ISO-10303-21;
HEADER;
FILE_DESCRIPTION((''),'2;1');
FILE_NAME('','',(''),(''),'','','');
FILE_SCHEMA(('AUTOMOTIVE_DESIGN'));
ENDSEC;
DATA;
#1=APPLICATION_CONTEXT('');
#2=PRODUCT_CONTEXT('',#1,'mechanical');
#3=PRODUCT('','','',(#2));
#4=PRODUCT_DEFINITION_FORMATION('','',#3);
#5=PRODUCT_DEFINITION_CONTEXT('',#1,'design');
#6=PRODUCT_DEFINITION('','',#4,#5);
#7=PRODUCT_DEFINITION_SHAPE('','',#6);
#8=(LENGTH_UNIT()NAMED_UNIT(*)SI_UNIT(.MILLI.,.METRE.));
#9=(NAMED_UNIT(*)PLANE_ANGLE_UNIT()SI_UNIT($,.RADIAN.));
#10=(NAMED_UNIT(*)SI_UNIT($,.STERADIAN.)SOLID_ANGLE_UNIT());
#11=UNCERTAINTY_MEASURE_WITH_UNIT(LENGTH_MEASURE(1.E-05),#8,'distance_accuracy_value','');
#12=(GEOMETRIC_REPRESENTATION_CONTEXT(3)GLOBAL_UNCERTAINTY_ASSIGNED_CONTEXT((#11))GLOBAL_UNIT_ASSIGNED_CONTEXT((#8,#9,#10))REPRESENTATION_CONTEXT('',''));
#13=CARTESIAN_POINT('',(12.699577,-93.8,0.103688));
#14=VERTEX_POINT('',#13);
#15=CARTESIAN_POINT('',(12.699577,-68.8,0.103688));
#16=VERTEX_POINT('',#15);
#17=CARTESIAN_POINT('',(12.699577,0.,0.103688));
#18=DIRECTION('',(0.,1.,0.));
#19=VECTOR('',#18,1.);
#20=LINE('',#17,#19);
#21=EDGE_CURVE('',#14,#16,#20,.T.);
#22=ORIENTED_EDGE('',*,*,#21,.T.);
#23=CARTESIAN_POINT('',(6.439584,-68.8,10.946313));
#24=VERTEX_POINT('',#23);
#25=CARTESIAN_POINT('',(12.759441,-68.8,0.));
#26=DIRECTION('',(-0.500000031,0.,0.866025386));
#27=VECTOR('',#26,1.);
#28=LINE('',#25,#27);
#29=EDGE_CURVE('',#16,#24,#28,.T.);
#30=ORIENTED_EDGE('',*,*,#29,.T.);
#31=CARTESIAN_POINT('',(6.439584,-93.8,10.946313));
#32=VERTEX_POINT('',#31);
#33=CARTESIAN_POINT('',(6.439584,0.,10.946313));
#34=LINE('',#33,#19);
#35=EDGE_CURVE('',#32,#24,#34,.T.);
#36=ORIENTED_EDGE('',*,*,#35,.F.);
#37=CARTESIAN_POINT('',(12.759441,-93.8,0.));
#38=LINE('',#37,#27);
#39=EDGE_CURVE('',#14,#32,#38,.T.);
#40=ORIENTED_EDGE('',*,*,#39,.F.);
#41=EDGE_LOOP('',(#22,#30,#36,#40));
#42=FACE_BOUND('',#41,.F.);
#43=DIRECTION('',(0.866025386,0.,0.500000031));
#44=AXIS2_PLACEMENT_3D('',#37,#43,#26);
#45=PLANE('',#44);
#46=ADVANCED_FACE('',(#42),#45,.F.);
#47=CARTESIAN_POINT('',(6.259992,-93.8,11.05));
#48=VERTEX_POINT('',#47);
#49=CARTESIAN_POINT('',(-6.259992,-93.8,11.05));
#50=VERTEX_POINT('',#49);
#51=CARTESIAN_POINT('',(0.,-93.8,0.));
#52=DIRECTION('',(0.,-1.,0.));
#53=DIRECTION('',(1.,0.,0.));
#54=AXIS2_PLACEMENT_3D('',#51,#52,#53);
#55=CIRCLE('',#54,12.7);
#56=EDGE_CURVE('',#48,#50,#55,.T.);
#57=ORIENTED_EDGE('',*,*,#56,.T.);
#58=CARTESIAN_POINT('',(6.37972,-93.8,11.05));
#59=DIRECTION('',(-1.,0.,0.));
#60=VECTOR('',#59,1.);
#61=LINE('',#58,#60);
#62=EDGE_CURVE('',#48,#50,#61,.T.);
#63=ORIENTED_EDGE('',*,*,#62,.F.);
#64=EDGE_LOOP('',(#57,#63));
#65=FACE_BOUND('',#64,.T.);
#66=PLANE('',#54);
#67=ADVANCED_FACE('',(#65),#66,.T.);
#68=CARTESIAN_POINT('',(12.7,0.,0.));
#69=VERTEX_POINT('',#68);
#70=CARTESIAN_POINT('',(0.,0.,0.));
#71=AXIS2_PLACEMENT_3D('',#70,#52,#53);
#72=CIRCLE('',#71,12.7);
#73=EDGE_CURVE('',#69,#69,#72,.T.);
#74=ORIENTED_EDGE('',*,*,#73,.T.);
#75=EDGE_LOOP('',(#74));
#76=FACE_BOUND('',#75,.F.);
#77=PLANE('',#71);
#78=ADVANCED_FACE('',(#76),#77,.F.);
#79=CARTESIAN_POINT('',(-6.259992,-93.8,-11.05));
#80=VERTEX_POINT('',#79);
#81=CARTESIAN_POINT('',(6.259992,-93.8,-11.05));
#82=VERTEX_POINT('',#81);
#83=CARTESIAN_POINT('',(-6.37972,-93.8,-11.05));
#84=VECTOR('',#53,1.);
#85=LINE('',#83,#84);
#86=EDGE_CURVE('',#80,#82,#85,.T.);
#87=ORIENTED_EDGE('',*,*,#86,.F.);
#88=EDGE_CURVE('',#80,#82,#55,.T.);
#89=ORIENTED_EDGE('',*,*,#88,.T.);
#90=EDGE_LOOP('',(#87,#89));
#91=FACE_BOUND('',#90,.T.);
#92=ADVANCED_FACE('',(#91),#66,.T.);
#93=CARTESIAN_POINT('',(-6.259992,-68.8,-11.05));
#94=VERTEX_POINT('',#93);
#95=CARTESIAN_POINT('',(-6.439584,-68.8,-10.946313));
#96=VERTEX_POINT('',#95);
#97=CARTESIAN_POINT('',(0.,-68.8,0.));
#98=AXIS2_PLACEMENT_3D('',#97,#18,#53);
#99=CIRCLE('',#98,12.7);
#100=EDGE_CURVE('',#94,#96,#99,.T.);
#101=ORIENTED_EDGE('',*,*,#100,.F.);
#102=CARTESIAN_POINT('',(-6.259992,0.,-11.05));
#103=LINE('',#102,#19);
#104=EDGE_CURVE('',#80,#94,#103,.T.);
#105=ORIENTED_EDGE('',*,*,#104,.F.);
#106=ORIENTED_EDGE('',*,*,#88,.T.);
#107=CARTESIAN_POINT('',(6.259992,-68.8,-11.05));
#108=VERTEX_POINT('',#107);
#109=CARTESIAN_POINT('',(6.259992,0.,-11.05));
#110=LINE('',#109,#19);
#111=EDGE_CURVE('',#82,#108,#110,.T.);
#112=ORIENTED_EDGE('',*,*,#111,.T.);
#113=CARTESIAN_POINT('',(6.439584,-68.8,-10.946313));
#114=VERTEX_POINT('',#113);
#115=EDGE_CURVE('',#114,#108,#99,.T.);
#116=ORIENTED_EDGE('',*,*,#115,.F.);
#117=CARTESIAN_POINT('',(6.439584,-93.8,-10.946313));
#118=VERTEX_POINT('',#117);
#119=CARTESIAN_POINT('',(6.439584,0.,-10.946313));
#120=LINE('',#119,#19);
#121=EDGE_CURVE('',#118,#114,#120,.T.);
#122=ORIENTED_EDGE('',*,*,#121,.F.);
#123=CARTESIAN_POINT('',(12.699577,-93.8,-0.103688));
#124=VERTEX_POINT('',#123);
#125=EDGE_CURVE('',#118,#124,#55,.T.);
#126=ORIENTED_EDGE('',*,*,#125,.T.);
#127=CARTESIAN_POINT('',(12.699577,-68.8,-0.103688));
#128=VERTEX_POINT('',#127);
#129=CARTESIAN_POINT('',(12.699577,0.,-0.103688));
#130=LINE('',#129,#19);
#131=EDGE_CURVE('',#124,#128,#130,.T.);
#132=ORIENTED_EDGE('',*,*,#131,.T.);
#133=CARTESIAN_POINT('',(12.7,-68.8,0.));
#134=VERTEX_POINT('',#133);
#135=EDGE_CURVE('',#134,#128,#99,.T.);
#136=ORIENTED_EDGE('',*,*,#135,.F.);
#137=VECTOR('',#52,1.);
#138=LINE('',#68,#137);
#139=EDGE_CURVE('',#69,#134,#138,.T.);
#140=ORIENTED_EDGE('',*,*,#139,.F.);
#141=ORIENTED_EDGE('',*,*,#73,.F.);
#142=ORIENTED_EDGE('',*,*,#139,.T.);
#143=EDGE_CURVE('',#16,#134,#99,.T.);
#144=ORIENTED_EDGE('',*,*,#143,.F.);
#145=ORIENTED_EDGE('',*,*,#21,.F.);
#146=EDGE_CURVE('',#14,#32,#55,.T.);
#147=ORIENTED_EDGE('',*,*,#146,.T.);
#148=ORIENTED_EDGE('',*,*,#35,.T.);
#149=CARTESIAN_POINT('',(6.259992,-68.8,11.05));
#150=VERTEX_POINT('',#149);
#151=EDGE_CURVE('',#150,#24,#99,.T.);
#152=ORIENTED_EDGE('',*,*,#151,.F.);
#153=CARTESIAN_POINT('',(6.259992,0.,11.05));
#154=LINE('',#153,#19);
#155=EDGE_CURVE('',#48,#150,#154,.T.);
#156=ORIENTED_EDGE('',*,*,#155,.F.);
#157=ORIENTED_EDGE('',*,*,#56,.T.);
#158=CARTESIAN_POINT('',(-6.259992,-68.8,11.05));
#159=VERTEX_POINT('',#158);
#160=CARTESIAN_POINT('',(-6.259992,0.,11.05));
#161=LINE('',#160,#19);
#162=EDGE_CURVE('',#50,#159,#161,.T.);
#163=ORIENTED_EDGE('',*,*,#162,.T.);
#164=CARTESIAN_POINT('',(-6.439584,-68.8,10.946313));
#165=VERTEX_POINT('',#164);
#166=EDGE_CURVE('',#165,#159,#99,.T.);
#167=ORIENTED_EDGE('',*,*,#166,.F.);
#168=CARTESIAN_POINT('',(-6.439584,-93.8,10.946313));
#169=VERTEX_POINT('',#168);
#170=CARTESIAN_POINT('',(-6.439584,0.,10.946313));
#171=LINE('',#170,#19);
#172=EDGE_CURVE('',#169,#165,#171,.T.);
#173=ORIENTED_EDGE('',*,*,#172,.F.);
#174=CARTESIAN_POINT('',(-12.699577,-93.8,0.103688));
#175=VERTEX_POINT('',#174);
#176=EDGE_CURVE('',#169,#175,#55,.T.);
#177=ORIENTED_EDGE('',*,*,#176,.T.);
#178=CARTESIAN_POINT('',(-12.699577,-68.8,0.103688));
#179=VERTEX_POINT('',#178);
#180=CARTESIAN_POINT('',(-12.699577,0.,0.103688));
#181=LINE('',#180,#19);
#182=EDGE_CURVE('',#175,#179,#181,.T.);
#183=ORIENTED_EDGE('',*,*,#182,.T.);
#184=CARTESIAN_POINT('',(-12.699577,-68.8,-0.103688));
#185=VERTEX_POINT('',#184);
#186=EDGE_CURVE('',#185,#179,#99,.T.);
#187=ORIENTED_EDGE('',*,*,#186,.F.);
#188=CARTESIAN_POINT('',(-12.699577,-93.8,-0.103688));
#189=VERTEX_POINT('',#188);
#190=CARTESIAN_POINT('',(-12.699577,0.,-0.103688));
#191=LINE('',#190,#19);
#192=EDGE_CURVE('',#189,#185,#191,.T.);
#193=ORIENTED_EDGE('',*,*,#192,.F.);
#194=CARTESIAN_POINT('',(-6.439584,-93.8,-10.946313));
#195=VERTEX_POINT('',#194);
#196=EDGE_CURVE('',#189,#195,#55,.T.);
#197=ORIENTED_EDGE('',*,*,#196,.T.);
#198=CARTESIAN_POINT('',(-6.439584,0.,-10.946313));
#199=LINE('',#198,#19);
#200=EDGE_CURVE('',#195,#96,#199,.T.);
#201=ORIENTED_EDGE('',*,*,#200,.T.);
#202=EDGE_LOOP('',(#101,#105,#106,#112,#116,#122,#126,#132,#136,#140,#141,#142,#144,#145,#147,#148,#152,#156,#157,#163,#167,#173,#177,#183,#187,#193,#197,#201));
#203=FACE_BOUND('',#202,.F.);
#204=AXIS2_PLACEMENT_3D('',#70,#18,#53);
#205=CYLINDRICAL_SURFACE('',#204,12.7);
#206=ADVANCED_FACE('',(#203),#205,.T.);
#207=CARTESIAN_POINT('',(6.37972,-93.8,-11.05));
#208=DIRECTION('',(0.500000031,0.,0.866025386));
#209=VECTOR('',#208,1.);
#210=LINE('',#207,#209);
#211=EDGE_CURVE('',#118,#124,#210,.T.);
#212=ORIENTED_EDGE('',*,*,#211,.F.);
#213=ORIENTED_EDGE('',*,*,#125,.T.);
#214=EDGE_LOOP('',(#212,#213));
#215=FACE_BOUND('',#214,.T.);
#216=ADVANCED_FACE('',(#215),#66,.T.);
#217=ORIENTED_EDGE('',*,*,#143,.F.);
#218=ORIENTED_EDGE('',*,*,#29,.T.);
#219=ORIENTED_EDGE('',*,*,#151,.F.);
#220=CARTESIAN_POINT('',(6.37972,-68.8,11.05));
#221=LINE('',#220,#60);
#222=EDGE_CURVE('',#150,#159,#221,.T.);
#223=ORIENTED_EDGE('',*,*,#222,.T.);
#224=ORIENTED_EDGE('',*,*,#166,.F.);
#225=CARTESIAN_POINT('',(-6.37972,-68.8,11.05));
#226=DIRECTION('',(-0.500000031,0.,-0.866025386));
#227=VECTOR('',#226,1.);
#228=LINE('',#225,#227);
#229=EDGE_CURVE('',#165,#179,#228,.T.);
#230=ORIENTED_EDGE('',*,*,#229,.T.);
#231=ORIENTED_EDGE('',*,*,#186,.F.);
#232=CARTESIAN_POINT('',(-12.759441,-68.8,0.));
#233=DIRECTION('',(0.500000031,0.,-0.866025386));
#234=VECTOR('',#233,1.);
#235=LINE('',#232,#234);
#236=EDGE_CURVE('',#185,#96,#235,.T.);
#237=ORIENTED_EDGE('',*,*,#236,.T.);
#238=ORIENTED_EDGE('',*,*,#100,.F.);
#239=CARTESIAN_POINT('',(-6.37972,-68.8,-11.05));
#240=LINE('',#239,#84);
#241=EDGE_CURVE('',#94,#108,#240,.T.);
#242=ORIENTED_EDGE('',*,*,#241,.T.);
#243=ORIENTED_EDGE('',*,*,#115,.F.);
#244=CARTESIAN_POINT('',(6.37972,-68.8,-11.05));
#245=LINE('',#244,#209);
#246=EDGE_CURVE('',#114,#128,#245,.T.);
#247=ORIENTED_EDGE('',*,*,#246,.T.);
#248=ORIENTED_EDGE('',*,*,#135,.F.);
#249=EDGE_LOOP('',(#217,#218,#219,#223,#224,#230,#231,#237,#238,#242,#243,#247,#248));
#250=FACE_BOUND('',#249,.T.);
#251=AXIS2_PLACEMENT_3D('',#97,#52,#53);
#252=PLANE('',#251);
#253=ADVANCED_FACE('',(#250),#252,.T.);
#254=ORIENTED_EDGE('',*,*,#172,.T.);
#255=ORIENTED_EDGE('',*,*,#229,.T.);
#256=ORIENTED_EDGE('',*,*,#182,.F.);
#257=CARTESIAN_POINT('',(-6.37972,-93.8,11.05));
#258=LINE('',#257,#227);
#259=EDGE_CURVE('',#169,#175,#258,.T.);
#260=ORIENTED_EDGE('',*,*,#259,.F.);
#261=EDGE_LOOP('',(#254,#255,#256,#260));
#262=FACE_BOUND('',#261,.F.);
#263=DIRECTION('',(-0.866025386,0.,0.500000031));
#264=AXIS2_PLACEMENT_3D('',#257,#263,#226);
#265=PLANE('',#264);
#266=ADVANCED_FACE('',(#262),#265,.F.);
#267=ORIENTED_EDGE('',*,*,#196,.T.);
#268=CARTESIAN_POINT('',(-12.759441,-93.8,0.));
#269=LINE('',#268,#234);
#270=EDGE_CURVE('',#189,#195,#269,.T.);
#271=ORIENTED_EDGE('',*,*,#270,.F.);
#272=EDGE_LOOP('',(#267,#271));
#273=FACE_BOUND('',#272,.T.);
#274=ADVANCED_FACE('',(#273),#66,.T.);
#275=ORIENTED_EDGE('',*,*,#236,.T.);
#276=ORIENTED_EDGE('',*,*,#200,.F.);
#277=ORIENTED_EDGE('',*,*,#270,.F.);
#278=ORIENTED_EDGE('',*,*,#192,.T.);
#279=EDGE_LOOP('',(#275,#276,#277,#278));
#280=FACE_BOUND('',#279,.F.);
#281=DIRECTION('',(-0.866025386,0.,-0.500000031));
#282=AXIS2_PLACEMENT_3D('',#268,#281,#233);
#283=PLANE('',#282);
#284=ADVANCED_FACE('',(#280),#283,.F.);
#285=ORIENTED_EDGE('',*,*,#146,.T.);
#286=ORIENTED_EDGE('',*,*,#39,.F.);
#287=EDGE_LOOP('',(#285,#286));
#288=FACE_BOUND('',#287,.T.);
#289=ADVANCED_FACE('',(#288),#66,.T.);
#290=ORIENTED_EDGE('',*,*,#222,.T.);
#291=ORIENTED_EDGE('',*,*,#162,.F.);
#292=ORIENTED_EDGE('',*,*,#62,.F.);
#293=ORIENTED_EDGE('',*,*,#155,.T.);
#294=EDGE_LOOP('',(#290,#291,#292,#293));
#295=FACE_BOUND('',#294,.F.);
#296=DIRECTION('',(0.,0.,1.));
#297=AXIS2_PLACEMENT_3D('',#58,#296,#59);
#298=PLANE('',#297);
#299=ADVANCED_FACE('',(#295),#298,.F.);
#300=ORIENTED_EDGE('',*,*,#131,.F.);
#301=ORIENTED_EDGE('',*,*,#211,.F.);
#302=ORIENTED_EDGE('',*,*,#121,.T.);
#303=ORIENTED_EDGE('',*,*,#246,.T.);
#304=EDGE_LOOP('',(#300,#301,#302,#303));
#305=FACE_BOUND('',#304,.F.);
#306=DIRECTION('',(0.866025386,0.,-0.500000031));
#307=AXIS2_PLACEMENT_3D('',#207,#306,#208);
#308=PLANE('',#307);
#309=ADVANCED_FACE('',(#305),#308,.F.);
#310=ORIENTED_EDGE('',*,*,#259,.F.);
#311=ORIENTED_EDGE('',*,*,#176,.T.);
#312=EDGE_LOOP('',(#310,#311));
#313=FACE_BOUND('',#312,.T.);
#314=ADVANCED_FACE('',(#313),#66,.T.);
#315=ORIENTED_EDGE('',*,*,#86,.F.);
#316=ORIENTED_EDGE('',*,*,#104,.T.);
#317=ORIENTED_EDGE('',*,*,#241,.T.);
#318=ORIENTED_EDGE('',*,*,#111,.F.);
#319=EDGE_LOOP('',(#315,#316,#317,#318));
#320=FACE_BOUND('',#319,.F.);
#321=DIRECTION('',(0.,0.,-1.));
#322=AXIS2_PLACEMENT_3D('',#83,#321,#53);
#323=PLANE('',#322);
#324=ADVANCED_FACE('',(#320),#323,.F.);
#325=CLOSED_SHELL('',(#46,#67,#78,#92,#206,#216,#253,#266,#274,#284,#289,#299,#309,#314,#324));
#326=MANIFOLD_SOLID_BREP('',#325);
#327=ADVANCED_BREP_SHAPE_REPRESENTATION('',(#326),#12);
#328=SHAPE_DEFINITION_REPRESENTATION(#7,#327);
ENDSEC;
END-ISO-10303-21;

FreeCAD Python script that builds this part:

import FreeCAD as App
import Part
import Sketcher
from FreeCAD import Vector
Q = App.Units.Quantity

doc = App.newDocument("Part")
body = doc.addObject("PartDesign::Body", "Body")

sketch1 = body.newObject("Sketcher::SketchObject", "Sketch")
sketch1.AttachmentSupport = (doc.getObject("XZ_Plane"), [""])
sketch1.MapMode = "FlatFace"
sketch1.addGeometry(Part.Circle(Vector(0, 0, 0), Vector(0, 0, 1), 12.7), False)
sketch1.addConstraint(Sketcher.Constraint("Coincident", 0, 3, -1, 1))
sketch1.addConstraint(Sketcher.Constraint("Diameter", 0, Q("25.4 mm")))
pad1 = body.newObject("PartDesign::Pad", "Pad")
pad1.Profile = sketch1
pad1.Length = 93.8

sketch2 = body.newObject("Sketcher::SketchObject", "Sketch001")
sketch2.AttachmentSupport = (doc.getObject("XZ_Plane"), [""])
sketch2.MapMode = "FlatFace"
sketch2.AttachmentOffset = App.Placement(Vector(0, 0, 93.8), App.Rotation())
sketch2.addGeometry(Part.LineSegment(Vector(6.37972, -11.05, 0), Vector(12.759441, 0, 0)), False)
sketch2.addGeometry(Part.LineSegment(Vector(12.759441, 0, 0), Vector(6.37972, 11.05, 0)), False)
sketch2.addGeometry(Part.LineSegment(Vector(6.37972, 11.05, 0), Vector(-6.37972, 11.05, 0)), False)
sketch2.addGeometry(Part.LineSegment(Vector(-6.37972, 11.05, 0), Vector(-12.759441, 0, 0)), False)
sketch2.addGeometry(Part.LineSegment(Vector(-12.759441, 0, 0), Vector(-6.37972, -11.05, 0)), False)
sketch2.addGeometry(Part.LineSegment(Vector(-6.37972, -11.05, 0), Vector(6.37972, -11.05, 0)), False)
sketch2.addConstraint(Sketcher.Constraint("Coincident", 0, 2, 1, 1))
sketch2.addConstraint(Sketcher.Constraint("Coincident", 1, 2, 2, 1))
sketch2.addConstraint(Sketcher.Constraint("Coincident", 2, 2, 3, 1))
sketch2.addConstraint(Sketcher.Constraint("Coincident", 3, 2, 4, 1))
sketch2.addConstraint(Sketcher.Constraint("Coincident", 4, 2, 5, 1))
sketch2.addConstraint(Sketcher.Constraint("Coincident", 5, 2, 0, 1))
sketch2.addConstraint(Sketcher.Constraint("Horizontal", 2))
sketch2.addConstraint(Sketcher.Constraint("Horizontal", 5))
sketch2.addConstraint(Sketcher.Constraint("Symmetric", 0, 2, 3, 2, -1, 1))
sketch2.addConstraint(Sketcher.Constraint("Symmetric", 1, 2, 4, 2, -1, 1))
sketch2.addConstraint(Sketcher.Constraint("PointOnObject", 0, 2, -1))
sketch2.addConstraint(Sketcher.Constraint("Parallel", 0, 3))
sketch2.addConstraint(Sketcher.Constraint("Vertical", 2, 2, 4, 2))
sketch2.addConstraint(Sketcher.Constraint("Angle", 0, Q("59.999998 deg")))
sketch2.addConstraint(Sketcher.Constraint("DistanceY", 4, 2, 2, 2, Q("22.1 mm")))
sketch2.addConstraint(Sketcher.Constraint("DistanceX", 2, 2, 2, 1, Q("12.75944 mm")))
pocket1 = body.newObject("PartDesign::Pocket", "Pocket")
pocket1.Profile = sketch2
pocket1.Length = 25

doc.recompute()
